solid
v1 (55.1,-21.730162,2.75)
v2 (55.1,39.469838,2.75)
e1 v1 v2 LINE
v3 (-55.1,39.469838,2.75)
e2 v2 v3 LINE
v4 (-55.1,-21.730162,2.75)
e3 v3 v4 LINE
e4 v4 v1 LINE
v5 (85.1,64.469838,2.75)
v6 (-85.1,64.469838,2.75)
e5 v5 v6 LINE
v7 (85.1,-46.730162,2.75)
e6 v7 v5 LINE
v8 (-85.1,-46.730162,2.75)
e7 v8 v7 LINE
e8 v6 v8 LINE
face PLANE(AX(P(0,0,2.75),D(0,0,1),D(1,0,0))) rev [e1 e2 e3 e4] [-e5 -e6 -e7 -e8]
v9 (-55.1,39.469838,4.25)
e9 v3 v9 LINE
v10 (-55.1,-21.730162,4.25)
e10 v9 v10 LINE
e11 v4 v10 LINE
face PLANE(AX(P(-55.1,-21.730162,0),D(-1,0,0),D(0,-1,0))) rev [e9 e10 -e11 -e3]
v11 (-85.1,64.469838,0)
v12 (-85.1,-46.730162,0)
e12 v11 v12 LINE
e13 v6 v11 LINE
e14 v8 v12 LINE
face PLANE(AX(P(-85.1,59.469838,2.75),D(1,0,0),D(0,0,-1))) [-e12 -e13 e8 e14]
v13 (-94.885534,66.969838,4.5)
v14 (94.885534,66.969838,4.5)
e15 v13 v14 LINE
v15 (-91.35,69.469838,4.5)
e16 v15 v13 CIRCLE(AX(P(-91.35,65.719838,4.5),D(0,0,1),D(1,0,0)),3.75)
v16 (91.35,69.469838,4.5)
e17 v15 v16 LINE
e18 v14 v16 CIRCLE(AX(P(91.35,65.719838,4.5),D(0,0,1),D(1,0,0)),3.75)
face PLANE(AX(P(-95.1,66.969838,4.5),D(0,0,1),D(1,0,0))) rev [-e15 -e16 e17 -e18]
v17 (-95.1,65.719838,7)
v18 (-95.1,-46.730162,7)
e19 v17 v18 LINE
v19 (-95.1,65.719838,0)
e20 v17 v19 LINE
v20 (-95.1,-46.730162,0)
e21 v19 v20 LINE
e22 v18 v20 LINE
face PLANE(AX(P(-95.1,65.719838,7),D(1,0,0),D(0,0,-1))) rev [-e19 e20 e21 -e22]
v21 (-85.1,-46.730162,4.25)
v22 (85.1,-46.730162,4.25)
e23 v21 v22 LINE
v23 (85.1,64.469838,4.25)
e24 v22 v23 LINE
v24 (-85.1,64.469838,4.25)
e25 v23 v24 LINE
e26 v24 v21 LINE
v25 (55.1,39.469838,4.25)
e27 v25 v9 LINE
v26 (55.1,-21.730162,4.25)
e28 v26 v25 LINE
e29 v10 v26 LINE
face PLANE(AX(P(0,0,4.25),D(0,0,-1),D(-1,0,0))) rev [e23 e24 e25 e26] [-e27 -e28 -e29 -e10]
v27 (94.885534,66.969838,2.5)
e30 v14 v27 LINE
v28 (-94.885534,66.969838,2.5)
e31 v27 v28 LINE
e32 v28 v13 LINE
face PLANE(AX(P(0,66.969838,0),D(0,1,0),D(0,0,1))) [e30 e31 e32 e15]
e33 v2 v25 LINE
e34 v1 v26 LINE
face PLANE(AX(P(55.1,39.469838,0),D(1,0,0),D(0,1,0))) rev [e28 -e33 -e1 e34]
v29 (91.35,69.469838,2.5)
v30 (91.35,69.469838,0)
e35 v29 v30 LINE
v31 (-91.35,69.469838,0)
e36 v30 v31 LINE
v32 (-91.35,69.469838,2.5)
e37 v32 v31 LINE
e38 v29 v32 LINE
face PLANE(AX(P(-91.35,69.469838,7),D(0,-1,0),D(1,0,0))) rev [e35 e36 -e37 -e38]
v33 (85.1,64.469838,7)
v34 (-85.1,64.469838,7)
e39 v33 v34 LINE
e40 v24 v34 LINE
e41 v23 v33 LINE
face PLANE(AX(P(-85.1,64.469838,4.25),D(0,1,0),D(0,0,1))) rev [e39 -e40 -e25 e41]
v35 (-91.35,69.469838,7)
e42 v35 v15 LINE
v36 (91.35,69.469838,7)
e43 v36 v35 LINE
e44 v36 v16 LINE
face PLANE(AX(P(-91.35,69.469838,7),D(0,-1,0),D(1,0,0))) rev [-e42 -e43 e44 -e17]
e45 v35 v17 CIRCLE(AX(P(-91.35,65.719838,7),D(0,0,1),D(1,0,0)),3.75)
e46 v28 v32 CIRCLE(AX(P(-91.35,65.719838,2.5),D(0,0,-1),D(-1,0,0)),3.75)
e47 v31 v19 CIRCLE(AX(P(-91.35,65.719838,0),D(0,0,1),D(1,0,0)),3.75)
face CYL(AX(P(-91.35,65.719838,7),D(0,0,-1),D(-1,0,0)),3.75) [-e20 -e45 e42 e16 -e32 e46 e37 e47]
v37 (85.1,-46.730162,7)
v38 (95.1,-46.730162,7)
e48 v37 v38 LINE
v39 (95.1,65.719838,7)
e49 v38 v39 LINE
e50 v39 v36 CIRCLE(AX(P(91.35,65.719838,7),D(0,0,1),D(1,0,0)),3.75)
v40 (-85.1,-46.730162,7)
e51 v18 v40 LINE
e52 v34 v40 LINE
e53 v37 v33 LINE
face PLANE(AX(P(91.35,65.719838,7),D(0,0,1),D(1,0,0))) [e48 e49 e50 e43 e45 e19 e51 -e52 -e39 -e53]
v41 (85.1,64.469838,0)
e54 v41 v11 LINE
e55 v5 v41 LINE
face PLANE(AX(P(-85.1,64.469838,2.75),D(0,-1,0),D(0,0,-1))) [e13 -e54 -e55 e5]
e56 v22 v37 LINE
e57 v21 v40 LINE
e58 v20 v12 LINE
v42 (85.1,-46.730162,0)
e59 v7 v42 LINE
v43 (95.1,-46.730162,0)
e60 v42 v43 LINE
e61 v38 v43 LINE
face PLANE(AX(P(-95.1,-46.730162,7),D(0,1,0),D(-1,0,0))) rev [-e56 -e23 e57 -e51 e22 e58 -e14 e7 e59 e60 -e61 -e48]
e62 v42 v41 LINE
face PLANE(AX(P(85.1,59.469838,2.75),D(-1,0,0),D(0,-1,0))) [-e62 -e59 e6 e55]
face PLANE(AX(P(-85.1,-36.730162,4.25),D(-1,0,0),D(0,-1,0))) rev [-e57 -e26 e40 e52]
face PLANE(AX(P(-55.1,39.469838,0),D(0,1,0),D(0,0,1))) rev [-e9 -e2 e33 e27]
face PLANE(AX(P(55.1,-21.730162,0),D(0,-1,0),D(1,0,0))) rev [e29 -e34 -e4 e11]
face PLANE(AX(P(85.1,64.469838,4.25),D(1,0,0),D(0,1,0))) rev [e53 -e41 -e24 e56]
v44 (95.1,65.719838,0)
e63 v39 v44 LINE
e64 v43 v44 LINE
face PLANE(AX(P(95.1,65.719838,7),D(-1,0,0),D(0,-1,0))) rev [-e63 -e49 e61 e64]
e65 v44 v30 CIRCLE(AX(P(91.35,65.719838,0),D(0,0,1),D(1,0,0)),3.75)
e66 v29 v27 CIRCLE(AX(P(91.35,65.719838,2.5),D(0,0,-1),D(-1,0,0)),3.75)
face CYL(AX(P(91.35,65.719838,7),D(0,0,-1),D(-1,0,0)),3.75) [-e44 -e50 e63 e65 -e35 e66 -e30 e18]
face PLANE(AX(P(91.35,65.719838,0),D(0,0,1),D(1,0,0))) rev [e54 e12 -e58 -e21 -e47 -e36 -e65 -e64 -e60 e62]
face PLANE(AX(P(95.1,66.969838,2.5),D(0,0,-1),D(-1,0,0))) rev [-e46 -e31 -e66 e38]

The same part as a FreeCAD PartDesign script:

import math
import FreeCAD as App
import Part
import Sketcher

V = App.Vector
Q = App.Units.Quantity

doc = App.newDocument("Part")
body = doc.addObject("PartDesign::Body", "Body")

sketch1 = body.newObject("Sketcher::SketchObject", "Sketch")
sketch1.AttachmentSupport = (doc.getObject("XY_Plane"), [""])
sketch1.MapMode = "FlatFace"
sketch1.addGeometry([
    Part.LineSegment(V(91.3, 69.5, 0), V(-91.3, 69.5, 0)),
    Part.ArcOfCircle(Part.Circle(V(-91.3, 65.7, 0), V(0, 0, 1), 3.8), math.radians(90), math.radians(180)),
    Part.LineSegment(V(-95.1, 65.7, 0), V(-95.1, -46.7, 0)),
    Part.LineSegment(V(-95.1, -46.7, 0), V(95.1, -46.7, 0)),
    Part.LineSegment(V(95.1, -46.7, 0), V(95.1, 65.7, 0)),
    Part.ArcOfCircle(Part.Circle(V(91.3, 65.7, 0), V(0, 0, 1), 3.8), math.radians(0), math.radians(90)),
], False)
sketch1.addConstraint([
    Sketcher.Constraint("Tangent", 0, 2, 1, 1),
    Sketcher.Constraint("Tangent", 1, 2, 2, 1),
    Sketcher.Constraint("Coincident", 2, 2, 3, 1),
    Sketcher.Constraint("Coincident", 3, 2, 4, 1),
    Sketcher.Constraint("Tangent", 4, 2, 5, 1),
    Sketcher.Constraint("Tangent", 5, 2, 0, 1),
    Sketcher.Constraint("Horizontal", 0),
    Sketcher.Constraint("Vertical", 2),
    Sketcher.Constraint("Horizontal", 3),
    Sketcher.Constraint("Vertical", 4),
    Sketcher.Constraint("Equal", 1, 5),
    Sketcher.Constraint("Radius", 1, Q("3.75 mm")),
    Sketcher.Constraint("DistanceX", 0, 2, 0, 1, Q("182.7 mm")),
    Sketcher.Constraint("DistanceY", 2, 2, 2, 1, Q("112.45 mm")),
    Sketcher.Constraint("DistanceX", 1, 2, -1, 1, Q("95.1 mm")),
    Sketcher.Constraint("DistanceY", -1, 1, 1, 3, Q("65.719838 mm")),
])
pad1 = body.newObject("PartDesign::Pad", "Pad")
pad1.Profile = sketch1
pad1.Length = 7

sketch2 = body.newObject("Sketcher::SketchObject", "Sketch001")
sketch2.AttachmentSupport = (doc.getObject("XY_Plane"), [""])
sketch2.MapMode = "FlatFace"
sketch2.addGeometry([
    Part.LineSegment(V(-85, -47, 0), V(85, -47, 0)),
    Part.LineSegment(V(85, -47, 0), V(85, 64, 0)),
    Part.LineSegment(V(85, 64, 0), V(-85, 64, 0)),
    Part.LineSegment(V(-85, 64, 0), V(-85, -47, 0)),
], False)
sketch2.addConstraint([
    Sketcher.Constraint("Coincident", 0, 2, 1, 1),
    Sketcher.Constraint("Coincident", 1, 2, 2, 1),
    Sketcher.Constraint("Coincident", 2, 2, 3, 1),
    Sketcher.Constraint("Coincident", 3, 2, 0, 1),
    Sketcher.Constraint("Horizontal", 0),
    Sketcher.Constraint("Vertical", 1),
    Sketcher.Constraint("Horizontal", 2),
    Sketcher.Constraint("Vertical", 3),
    Sketcher.Constraint("DistanceX", 0, 1, 0, 2, Q("170.2 mm")),
    Sketcher.Constraint("DistanceY", 1, 1, 1, 2, Q("111.2 mm")),
    Sketcher.Constraint("DistanceX", -1, 1, 0, 2, Q("85.1 mm")),
    Sketcher.Constraint("DistanceY", 0, 2, -1, 1, Q("46.730162 mm")),
])
pocket1 = body.newObject("PartDesign::Pocket", "Pocket")
pocket1.Profile = sketch2
pocket1.Length = 2.75
pocket1.Reversed = True

sketch3 = body.newObject("Sketcher::SketchObject", "Sketch002")
sketch3.AttachmentSupport = (doc.getObject("XY_Plane"), [""])
sketch3.MapMode = "FlatFace"
sketch3.AttachmentOffset = App.Placement(V(0, 0, 7), App.Rotation())
sketch3.addGeometry([
    Part.LineSegment(V(-85, -47, 0), V(85, -47, 0)),
    Part.LineSegment(V(85, -47, 0), V(85, 64, 0)),
    Part.LineSegment(V(85, 64, 0), V(-85, 64, 0)),
    Part.LineSegment(V(-85, 64, 0), V(-85, -47, 0)),
], False)
sketch3.addConstraint([
    Sketcher.Constraint("Coincident", 0, 2, 1, 1),
    Sketcher.Constraint("Coincident", 1, 2, 2, 1),
    Sketcher.Constraint("Coincident", 2, 2, 3, 1),
    Sketcher.Constraint("Coincident", 3, 2, 0, 1),
    Sketcher.Constraint("Horizontal", 0),
    Sketcher.Constraint("Vertical", 1),
    Sketcher.Constraint("Horizontal", 2),
    Sketcher.Constraint("Vertical", 3),
    Sketcher.Constraint("DistanceX", 0, 1, 0, 2, Q("170.2 mm")),
    Sketcher.Constraint("DistanceY", 1, 1, 1, 2, Q("111.2 mm")),
    Sketcher.Constraint("DistanceX", -1, 1, 0, 2, Q("85.1 mm")),
    Sketcher.Constraint("DistanceY", 0, 2, -1, 1, Q("46.730162 mm")),
])
pocket2 = body.newObject("PartDesign::Pocket", "Pocket001")
pocket2.Profile = sketch3
pocket2.Length = 2.75

sketch4 = body.newObject("Sketcher::SketchObject", "Sketch003")
sketch4.AttachmentSupport = (doc.getObject("XZ_Plane"), [""])
sketch4.MapMode = "FlatFace"
sketch4.AttachmentOffset = App.Placement(V(0, 0, -69.469838), App.Rotation())
sketch4.addGeometry([
    Part.LineSegment(V(-95.1, 2.5, 0), V(-95.1, 4.5, 0)),
    Part.LineSegment(V(-95.1, 4.5, 0), V(95.1, 4.5, 0)),
    Part.LineSegment(V(95.1, 4.5, 0), V(95.1, 2.5, 0)),
    Part.LineSegment(V(95.1, 2.5, 0), V(-95.1, 2.5, 0)),
], False)
sketch4.addConstraint([
    Sketcher.Constraint("Coincident", 0, 2, 1, 1),
    Sketcher.Constraint("Coincident", 1, 2, 2, 1),
    Sketcher.Constraint("Coincident", 2, 2, 3, 1),
    Sketcher.Constraint("Coincident", 3, 2, 0, 1),
    Sketcher.Constraint("Vertical", 0),
    Sketcher.Constraint("Horizontal", 1),
    Sketcher.Constraint("Vertical", 2),
    Sketcher.Constraint("Horizontal", 3),
    Sketcher.Constraint("DistanceY", 0, 1, 0, 2, Q("2 mm")),
    Sketcher.Constraint("DistanceX", 1, 1, 1, 2, Q("190.2 mm")),
    Sketcher.Constraint("DistanceX", 0, 2, -1, 1, Q("95.1 mm")),
    Sketcher.Constraint("DistanceY", -1, 1, 0, 2, Q("4.5 mm")),
])
pocket3 = body.newObject("PartDesign::Pocket", "Pocket002")
pocket3.Profile = sketch4
pocket3.Length = 2.5
pocket3.Reversed = True

sketch5 = body.newObject("Sketcher::SketchObject", "Sketch004")
sketch5.AttachmentSupport = (doc.getObject("XY_Plane"), [""])
sketch5.MapMode = "FlatFace"
sketch5.AttachmentOffset = App.Placement(V(0, 0, 4.25), App.Rotation())
sketch5.addGeometry([
    Part.LineSegment(V(-55, 39, 0), V(-55, -22, 0)),
    Part.LineSegment(V(-55, -22, 0), V(55, -22, 0)),
    Part.LineSegment(V(55, -22, 0), V(55, 39, 0)),
    Part.LineSegment(V(55, 39, 0), V(-55, 39, 0)),
], False)
sketch5.addConstraint([
    Sketcher.Constraint("Coincident", 0, 2, 1, 1),
    Sketcher.Constraint("Coincident", 1, 2, 2, 1),
    Sketcher.Constraint("Coincident", 2, 2, 3, 1),
    Sketcher.Constraint("Coincident", 3, 2, 0, 1),
    Sketcher.Constraint("Vertical", 0),
    Sketcher.Constraint("Horizontal", 1),
    Sketcher.Constraint("Vertical", 2),
    Sketcher.Constraint("Horizontal", 3),
    Sketcher.Constraint("DistanceX", 1, 1, 1, 2, Q("110.2 mm")),
    Sketcher.Constraint("DistanceY", 0, 2, 0, 1, Q("61.2 mm")),
    Sketcher.Constraint("DistanceX", 0, 2, -1, 1, Q("55.1 mm")),
    Sketcher.Constraint("DistanceY", 0, 2, -1, 1, Q("21.730162 mm")),
])
pocket4 = body.newObject("PartDesign::Pocket", "Pocket003")
pocket4.Profile = sketch5
pocket4.Type = "ThroughAll"

doc.recompute()
